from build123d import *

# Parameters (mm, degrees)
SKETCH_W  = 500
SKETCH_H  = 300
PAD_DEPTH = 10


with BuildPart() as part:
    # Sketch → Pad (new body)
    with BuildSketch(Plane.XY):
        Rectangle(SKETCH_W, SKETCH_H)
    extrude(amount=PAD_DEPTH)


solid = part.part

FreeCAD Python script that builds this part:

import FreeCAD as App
import Part
import Sketcher
from FreeCAD import Vector
Q = App.Units.Quantity


def add_polygon(sketch, points):
    """Adds a closed chain of lines whose ends are joined by coincident constraints."""
    first, n = sketch.GeometryCount, len(points)
    for a, b in zip(points, points[1:] + points[:1]):
        sketch.addGeometry(Part.LineSegment(App.Vector(*a, 0), App.Vector(*b, 0)), False)
    for i in range(n):
        sketch.addConstraint(Sketcher.Constraint("Coincident", first + i, 2, first + (i + 1) % n, 1))

doc = App.newDocument("Part")
body = doc.addObject("PartDesign::Body", "Body")

sketch1 = body.newObject("Sketcher::SketchObject", "Sketch")
sketch1.AttachmentSupport = (doc.getObject("XY_Plane"), [""])
sketch1.MapMode = "FlatFace"
add_polygon(sketch1, [(-250, 150), (-250, -150), (250, -150), (250, 150)])
sketch1.addConstraint(Sketcher.Constraint("Vertical", 0))
sketch1.addConstraint(Sketcher.Constraint("Horizontal", 1))
sketch1.addConstraint(Sketcher.Constraint("Vertical", 2))
sketch1.addConstraint(Sketcher.Constraint("Horizontal", 3))
sketch1.addConstraint(Sketcher.Constraint("Symmetric", 0, 2, 2, 2, -1, 1))
sketch1.addConstraint(Sketcher.Constraint("DistanceX", 1, 1, 1, 2, Q("500 mm")))
sketch1.addConstraint(Sketcher.Constraint("DistanceY", 0, 2, 0, 1, Q("300 mm")))
pad1 = body.newObject("PartDesign::Pad", "Pad")
pad1.Profile = sketch1
pad1.Length = 10

doc.recompute()
